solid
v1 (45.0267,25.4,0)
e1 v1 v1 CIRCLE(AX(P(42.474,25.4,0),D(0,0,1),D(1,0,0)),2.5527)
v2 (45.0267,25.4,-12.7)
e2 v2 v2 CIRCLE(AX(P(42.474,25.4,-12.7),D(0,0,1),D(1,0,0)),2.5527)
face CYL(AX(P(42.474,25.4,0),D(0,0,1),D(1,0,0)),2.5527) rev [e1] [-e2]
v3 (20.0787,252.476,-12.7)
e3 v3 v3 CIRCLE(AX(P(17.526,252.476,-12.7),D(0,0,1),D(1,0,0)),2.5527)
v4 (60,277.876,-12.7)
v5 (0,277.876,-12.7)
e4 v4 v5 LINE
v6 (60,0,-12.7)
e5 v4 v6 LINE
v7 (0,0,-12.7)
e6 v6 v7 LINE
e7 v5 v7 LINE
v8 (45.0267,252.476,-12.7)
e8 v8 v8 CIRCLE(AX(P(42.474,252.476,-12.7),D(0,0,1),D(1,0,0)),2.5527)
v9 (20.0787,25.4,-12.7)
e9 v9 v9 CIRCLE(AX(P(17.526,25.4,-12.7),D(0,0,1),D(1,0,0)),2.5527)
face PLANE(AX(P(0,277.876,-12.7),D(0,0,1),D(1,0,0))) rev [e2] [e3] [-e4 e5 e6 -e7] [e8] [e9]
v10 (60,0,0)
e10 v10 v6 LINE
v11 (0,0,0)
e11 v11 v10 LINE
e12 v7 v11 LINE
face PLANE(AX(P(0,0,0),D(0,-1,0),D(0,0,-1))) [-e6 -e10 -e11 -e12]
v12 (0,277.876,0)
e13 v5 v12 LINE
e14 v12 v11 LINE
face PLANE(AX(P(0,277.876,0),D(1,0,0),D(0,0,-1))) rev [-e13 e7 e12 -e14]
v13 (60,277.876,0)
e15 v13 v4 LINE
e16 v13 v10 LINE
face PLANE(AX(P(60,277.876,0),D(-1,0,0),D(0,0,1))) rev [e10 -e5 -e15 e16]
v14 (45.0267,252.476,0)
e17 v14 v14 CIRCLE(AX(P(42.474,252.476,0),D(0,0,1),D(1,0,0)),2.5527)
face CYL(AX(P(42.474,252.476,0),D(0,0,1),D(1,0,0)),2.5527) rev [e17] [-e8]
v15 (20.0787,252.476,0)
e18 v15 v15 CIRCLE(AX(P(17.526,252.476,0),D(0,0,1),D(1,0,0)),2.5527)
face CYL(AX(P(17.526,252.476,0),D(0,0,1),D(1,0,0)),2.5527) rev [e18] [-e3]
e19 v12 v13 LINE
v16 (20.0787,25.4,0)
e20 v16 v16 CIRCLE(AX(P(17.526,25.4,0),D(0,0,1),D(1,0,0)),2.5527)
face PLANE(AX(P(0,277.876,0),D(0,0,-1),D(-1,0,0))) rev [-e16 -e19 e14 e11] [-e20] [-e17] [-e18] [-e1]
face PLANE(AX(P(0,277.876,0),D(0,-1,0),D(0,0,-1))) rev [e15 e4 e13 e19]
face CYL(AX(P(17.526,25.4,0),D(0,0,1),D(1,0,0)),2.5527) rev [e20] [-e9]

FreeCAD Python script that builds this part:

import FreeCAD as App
import Part
import Sketcher
from FreeCAD import Vector
Q = App.Units.Quantity


def add_polygon(sketch, points):
    """Adds a closed chain of lines whose ends are joined by coincident constraints."""
    first, n = sketch.GeometryCount, len(points)
    for a, b in zip(points, points[1:] + points[:1]):
        sketch.addGeometry(Part.LineSegment(App.Vector(*a, 0), App.Vector(*b, 0)), False)
    for i in range(n):
        sketch.addConstraint(Sketcher.Constraint("Coincident", first + i, 2, first + (i + 1) % n, 1))

doc = App.newDocument("Part")
body = doc.addObject("PartDesign::Body", "Body")

# Sketch on XZ plane
sketch1 = body.newObject("Sketcher::SketchObject", "Sketch")
sketch1.AttachmentSupport = (doc.getObject("XZ_Plane"), [""])
sketch1.MapMode = "FlatFace"
add_polygon(sketch1, [(0, -13), (0, 0), (60, 0), (60, -13)])  # lines 0-3
sketch1.addConstraint([
    Sketcher.Constraint("Vertical", 0),
    Sketcher.Constraint("Horizontal", 1),
    Sketcher.Constraint("Vertical", 2),
    Sketcher.Constraint("Horizontal", 3),
    Sketcher.Constraint("Coincident", 0, 2, -1, 1),
    Sketcher.Constraint("DistanceY", 0, 1, 0, 2, Q("0.5 in")),
    Sketcher.Constraint("DistanceX", 1, 1, 1, 2, Q("60 mm")),
])
pad1 = body.newObject("PartDesign::Pad", "Pad")
pad1.Profile = sketch1
pad1.Length = Q("10.94 in")
pad1.Reversed = True

# Sketch on XY plane
sketch2 = body.newObject("Sketcher::SketchObject", "Sketch001")
sketch2.AttachmentSupport = (doc.getObject("XY_Plane"), [""])
sketch2.MapMode = "FlatFace"
sketch2.addGeometry([
    Part.Circle(Vector(17.5, 252.5, 0), Vector(0, 0, 1), 2.6),
    Part.Circle(Vector(42.5, 252.5, 0), Vector(0, 0, 1), 2.6),
    Part.Circle(Vector(17.5, 25.4, 0), Vector(0, 0, 1), 2.6),
    Part.Circle(Vector(42.5, 25.4, 0), Vector(0, 0, 1), 2.6),
], False)
sketch2.addConstraint([
    Sketcher.Constraint("Equal", 0, 1),
    Sketcher.Constraint("Equal", 1, 2),
    Sketcher.Constraint("Equal", 2, 3),
    Sketcher.Constraint("Horizontal", 0, 3, 1, 3),
    Sketcher.Constraint("Horizontal", 2, 3, 3, 3),
    Sketcher.Constraint("Vertical", 0, 3, 2, 3),
    Sketcher.Constraint("Vertical", 1, 3, 3, 3),
    Sketcher.Constraint("Diameter", 0, Q("0.201 in")),
    Sketcher.Constraint("DistanceY", -1, 1, 2, 3, Q("1 in")),
    Sketcher.Constraint("DistanceX", -1, 1, 0, 3, Q("0.69 in")),
    Sketcher.Constraint("DistanceY", -1, 1, 0, 3, Q("9.94 in")),
    Sketcher.Constraint("DistanceX", -1, 1, 1, 3, Q("42.474 mm")),
])
doc.recompute()
hole = body.newObject("PartDesign::Hole", "Hole")
hole.Profile = sketch2
hole.ThreadType = "None"
hole.Diameter = Q("0.201 in")
hole.DepthType = "ThroughAll"

doc.recompute()
